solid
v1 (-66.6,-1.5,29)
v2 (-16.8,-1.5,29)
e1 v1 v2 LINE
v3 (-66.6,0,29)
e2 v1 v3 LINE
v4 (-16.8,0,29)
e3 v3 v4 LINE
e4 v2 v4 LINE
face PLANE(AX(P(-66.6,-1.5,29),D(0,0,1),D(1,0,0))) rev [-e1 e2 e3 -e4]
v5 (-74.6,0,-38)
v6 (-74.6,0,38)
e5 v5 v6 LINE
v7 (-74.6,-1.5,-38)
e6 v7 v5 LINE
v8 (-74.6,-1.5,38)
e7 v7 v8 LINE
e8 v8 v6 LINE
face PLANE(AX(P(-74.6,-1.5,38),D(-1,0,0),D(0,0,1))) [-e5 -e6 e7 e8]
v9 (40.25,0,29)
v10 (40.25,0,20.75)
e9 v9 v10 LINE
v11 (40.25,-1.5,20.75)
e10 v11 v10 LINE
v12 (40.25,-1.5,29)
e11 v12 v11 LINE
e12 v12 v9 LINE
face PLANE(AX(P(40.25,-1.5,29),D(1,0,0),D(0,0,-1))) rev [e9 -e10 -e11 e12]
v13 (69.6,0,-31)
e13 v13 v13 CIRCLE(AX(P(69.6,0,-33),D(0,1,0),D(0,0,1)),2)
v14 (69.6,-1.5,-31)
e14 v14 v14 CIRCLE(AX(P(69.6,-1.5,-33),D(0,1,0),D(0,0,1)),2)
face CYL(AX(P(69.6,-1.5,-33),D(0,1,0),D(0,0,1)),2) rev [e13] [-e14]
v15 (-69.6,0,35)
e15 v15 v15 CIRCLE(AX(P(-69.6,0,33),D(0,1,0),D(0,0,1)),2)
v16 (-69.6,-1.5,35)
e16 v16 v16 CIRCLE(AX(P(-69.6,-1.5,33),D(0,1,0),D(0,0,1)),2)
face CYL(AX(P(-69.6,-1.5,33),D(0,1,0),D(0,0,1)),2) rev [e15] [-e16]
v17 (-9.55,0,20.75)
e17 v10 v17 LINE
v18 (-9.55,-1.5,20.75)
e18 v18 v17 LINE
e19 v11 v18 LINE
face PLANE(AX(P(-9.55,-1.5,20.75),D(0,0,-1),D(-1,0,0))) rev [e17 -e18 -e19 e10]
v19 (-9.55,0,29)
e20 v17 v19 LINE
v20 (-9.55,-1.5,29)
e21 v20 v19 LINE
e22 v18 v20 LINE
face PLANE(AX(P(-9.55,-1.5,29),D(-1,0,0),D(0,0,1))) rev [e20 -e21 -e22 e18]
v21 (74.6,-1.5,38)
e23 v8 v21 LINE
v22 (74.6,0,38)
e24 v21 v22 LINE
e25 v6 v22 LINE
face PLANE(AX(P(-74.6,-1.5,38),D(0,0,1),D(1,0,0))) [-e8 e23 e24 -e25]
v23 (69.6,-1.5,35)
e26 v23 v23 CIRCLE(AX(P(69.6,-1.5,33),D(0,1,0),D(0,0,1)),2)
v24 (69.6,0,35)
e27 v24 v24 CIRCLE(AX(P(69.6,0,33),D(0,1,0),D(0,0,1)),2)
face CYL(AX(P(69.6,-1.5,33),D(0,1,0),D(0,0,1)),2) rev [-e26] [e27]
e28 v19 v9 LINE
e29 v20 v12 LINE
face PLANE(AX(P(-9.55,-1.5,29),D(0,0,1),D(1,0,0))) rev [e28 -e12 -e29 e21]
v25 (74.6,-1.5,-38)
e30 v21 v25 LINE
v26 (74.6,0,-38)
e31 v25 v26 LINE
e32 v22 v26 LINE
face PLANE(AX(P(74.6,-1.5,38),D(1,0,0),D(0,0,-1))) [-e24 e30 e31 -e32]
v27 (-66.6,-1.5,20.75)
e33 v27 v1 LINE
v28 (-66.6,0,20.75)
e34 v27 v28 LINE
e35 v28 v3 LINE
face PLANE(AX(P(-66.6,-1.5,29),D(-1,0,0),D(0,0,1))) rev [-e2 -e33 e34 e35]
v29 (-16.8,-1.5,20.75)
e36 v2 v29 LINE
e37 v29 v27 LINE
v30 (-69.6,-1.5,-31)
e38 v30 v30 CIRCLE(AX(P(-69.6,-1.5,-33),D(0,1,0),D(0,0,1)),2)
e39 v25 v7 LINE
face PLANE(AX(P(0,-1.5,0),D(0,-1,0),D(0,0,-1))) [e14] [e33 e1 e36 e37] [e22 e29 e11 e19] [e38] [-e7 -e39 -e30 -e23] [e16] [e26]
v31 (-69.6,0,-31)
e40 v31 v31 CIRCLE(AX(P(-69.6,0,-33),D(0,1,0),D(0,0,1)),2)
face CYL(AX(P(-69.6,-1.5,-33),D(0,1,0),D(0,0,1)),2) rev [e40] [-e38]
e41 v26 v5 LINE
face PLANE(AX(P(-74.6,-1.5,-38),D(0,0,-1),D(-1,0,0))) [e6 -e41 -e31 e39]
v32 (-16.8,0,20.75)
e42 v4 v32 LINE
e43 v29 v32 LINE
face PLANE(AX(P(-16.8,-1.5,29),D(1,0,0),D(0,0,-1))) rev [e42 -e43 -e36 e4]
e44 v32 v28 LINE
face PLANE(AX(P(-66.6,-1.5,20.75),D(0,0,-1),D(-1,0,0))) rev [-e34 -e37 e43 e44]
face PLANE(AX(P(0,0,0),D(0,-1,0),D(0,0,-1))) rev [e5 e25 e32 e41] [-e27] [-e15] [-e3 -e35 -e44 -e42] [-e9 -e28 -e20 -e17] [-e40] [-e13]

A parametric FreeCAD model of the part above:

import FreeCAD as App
import Part
import Sketcher
Q = App.Units.Quantity


def add_polygon(sketch, points):
    """Adds a closed chain of lines whose ends are joined by coincident constraints."""
    first, n = sketch.GeometryCount, len(points)
    for a, b in zip(points, points[1:] + points[:1]):
        sketch.addGeometry(Part.LineSegment(App.Vector(*a, 0), App.Vector(*b, 0)), False)
    for i in range(n):
        sketch.addConstraint(Sketcher.Constraint("Coincident", first + i, 2, first + (i + 1) % n, 1))

doc = App.newDocument("Part")
body = doc.addObject("PartDesign::Body", "Body")

# Sketch on XZ plane
sketch1 = doc.addObject("Sketcher::SketchObject", "Sketch")
body.addObject(sketch1)
sketch1.AttachmentSupport = (doc.XZ_Plane, [""])
sketch1.MapMode = "FlatFace"
add_polygon(sketch1, [(-74.6, -38), (-74.6, 38), (74.6, 38), (74.6, -38)])  # lines 0-3
sketch1.addGeometry(Part.Circle(App.Vector(-69.6, 33, 0), App.Vector(0, 0, 1), 2), False)  # 4
add_polygon(sketch1, [(-16.8, 29), (-66.6, 29), (-66.6, 20.8), (-16.8, 20.8)])  # lines 5-8
add_polygon(sketch1, [(40.2, 29), (-9.6, 29), (-9.6, 20.8), (40.2, 20.8)])  # lines 9-12
sketch1.addGeometry(Part.Circle(App.Vector(69.6, 33, 0), App.Vector(0, 0, 1), 2), False)  # 13
sketch1.addGeometry(Part.Circle(App.Vector(-69.6, -33, 0), App.Vector(0, 0, 1), 2), False)  # 14
sketch1.addGeometry(Part.Circle(App.Vector(69.6, -33, 0), App.Vector(0, 0, 1), 2), False)  # 15
sketch1.addConstraint([
    Sketcher.Constraint("Vertical", 0),
    Sketcher.Constraint("Horizontal", 1),
    Sketcher.Constraint("Vertical", 2),
    Sketcher.Constraint("Horizontal", 3),
    Sketcher.Constraint("Horizontal", 5),
    Sketcher.Constraint("Vertical", 6),
    Sketcher.Constraint("Horizontal", 7),
    Sketcher.Constraint("Vertical", 8),
    Sketcher.Constraint("Horizontal", 9),
    Sketcher.Constraint("Vertical", 10),
    Sketcher.Constraint("Horizontal", 11),
    Sketcher.Constraint("Vertical", 12),
    Sketcher.Constraint("Equal", 4, 13),
    Sketcher.Constraint("Equal", 13, 14),
    Sketcher.Constraint("Equal", 14, 15),
    Sketcher.Constraint("Symmetric", 13, 3, 14, 3, -1, 1),
    Sketcher.Constraint("Symmetric", 4, 3, 15, 3, -1, 1),
    Sketcher.Constraint("Symmetric", 0, 2, 2, 2, -1, 1),
    Sketcher.Constraint("Symmetric", 4, 3, 13, 3, -2),
    Sketcher.Constraint("Horizontal", 8, 2, 9, 2),
    Sketcher.Constraint("Horizontal", 7, 2, 10, 2),
    Sketcher.Constraint("Equal", 7, 9),
    Sketcher.Constraint("Diameter", 4, Q("4 mm")),
    Sketcher.Constraint("DistanceY", 0, 1, 0, 2, Q("76 mm")),
    Sketcher.Constraint("DistanceX", 1, 1, 1, 2, Q("149.2 mm")),
    Sketcher.Constraint("DistanceX", 5, 2, 5, 1, Q("49.8 mm")),
    Sketcher.Constraint("DistanceY", -1, 1, 4, 3, Q("33 mm")),
    Sketcher.Constraint("DistanceY", -1, 1, 5, 2, Q("29 mm")),
    Sketcher.Constraint("DistanceX", 0, 2, 4, 3, Q("5 mm")),
    Sketcher.Constraint("DistanceX", 4, 3, 5, 2, Q("3 mm")),
    Sketcher.Constraint("DistanceY", 6, 2, 6, 1, Q("8.25 mm")),
    Sketcher.Constraint("DistanceX", 9, 2, -1, 1, Q("9.55 mm")),
])
pad1 = doc.addObject("PartDesign::Pad", "Pad")
body.addObject(pad1)
pad1.Profile = sketch1
pad1.Length = 1.5

doc.recompute()
